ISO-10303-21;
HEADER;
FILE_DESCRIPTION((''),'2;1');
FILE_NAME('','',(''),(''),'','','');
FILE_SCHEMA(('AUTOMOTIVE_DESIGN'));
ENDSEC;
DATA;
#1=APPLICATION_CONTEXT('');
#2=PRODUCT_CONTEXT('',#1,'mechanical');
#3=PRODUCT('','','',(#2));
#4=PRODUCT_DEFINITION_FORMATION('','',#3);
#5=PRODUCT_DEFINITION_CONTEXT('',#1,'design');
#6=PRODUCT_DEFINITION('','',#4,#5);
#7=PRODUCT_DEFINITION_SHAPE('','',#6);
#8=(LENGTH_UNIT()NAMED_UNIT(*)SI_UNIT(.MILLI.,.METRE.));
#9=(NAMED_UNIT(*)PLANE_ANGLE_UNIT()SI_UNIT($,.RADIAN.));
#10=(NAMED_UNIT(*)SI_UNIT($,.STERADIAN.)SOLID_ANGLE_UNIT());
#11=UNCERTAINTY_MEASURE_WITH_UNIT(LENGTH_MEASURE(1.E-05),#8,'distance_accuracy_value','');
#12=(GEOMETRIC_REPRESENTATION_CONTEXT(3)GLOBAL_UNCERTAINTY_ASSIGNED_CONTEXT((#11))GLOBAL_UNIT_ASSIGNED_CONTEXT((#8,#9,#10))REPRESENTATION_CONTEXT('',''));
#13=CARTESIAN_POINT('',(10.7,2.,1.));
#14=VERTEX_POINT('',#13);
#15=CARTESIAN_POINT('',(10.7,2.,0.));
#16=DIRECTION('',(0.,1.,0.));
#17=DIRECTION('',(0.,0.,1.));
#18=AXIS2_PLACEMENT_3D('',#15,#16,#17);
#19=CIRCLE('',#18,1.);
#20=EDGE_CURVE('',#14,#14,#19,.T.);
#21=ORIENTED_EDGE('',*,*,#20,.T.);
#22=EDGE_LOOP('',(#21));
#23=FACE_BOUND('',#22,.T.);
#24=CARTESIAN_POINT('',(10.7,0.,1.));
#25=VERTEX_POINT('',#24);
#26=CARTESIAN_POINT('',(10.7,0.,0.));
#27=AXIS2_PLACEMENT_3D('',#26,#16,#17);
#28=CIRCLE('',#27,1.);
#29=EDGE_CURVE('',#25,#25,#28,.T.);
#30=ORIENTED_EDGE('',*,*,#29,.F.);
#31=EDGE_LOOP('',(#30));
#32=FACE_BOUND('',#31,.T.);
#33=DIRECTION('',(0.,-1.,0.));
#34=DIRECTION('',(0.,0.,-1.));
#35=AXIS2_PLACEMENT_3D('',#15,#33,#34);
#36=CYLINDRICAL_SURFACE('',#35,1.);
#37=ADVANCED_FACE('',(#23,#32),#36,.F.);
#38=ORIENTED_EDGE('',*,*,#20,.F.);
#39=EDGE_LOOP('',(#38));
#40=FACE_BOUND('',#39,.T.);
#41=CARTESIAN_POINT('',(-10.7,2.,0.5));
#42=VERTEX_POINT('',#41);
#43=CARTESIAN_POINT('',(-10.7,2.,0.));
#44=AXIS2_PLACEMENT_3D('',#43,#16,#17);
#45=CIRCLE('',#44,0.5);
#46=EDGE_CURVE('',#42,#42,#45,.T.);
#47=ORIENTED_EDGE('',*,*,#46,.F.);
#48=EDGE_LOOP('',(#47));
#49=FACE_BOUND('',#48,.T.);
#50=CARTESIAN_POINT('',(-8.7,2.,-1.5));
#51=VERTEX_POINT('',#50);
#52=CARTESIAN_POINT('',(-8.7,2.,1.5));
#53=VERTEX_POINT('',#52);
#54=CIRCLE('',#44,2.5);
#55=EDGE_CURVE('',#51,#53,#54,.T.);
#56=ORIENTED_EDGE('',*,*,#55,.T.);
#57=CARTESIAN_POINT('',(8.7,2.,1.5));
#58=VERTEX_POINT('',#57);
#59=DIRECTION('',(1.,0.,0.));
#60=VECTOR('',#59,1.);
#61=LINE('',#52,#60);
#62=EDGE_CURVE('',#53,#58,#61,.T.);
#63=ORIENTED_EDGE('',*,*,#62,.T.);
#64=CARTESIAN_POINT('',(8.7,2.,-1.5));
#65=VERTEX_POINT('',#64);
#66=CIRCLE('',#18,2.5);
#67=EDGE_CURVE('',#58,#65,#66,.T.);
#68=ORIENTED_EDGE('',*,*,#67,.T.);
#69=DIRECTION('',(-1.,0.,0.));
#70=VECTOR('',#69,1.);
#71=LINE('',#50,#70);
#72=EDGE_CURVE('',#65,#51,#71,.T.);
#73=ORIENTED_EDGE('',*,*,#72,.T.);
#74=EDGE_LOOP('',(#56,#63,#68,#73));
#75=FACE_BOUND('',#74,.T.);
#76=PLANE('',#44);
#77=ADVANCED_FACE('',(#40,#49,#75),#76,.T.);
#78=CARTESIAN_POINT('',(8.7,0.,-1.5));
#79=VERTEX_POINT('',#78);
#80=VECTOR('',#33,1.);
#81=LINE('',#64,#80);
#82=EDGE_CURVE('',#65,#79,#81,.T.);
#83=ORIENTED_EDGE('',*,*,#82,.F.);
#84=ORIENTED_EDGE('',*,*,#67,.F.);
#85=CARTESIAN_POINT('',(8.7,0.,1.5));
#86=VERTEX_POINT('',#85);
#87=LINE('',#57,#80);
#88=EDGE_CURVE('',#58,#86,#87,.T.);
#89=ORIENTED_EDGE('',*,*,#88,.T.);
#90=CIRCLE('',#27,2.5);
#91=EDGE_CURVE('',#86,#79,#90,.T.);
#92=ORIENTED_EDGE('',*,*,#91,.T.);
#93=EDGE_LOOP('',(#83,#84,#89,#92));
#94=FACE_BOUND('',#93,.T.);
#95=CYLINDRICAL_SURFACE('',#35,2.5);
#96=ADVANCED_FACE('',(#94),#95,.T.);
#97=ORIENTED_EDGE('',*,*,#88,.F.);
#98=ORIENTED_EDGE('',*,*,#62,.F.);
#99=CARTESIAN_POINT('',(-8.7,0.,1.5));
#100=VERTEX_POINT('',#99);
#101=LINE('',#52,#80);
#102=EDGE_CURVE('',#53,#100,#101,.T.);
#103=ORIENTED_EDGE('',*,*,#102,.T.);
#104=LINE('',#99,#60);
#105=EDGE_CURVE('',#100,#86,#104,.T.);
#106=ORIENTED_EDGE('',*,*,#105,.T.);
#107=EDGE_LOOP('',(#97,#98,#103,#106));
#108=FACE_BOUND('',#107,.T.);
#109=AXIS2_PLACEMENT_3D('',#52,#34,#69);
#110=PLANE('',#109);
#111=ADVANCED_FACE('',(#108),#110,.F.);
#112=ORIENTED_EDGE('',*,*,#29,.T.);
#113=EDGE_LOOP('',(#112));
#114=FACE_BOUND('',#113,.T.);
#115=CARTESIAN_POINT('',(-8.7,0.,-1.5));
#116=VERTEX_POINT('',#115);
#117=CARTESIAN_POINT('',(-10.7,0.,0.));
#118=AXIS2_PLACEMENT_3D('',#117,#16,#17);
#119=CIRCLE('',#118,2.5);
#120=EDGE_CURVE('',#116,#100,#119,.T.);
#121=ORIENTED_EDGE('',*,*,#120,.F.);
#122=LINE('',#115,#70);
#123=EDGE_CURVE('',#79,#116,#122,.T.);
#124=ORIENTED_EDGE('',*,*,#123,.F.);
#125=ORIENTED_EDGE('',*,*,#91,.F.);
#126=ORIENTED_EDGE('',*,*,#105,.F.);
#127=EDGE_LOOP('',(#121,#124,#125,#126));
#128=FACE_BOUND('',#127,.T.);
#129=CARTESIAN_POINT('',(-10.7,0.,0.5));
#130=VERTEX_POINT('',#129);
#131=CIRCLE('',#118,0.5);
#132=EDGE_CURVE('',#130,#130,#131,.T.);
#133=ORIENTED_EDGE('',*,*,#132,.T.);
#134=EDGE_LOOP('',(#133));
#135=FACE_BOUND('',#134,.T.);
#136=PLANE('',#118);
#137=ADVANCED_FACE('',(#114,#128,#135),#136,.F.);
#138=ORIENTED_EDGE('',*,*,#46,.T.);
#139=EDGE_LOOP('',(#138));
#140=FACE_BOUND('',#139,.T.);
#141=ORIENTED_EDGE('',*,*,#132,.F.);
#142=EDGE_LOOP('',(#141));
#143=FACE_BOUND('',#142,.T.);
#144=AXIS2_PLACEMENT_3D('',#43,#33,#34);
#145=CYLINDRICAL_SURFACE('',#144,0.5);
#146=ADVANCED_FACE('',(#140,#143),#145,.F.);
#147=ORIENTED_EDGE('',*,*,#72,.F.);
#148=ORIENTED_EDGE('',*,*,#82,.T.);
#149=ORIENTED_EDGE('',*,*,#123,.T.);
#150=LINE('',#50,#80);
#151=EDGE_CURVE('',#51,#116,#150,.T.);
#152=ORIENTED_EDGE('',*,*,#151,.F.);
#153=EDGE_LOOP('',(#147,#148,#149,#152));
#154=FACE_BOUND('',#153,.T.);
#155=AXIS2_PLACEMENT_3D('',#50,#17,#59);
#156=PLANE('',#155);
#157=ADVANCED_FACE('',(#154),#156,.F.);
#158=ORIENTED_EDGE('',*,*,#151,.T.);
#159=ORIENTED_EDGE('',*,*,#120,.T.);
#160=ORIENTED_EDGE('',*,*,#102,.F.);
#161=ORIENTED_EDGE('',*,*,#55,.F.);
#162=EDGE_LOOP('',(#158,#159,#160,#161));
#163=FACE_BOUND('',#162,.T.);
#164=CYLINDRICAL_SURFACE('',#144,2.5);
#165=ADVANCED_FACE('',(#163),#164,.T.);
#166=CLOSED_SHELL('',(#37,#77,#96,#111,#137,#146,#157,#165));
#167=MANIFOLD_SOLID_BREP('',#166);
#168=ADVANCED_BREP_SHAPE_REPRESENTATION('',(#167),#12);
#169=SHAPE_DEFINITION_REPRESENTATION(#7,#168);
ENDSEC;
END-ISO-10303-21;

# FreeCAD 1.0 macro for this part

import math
import FreeCAD as App
import Part
import Sketcher
from FreeCAD import Vector

doc = App.newDocument("Part")
body = doc.addObject("PartDesign::Body", "Body")

sketch1 = body.newObject("Sketcher::SketchObject", "Sketch")
sketch1.AttachmentSupport = (doc.getObject("XZ_Plane"), [""])
sketch1.MapMode = "FlatFace"
sketch1.addGeometry(Part.LineSegment(Vector(8.7, -1.5, 0), Vector(-8.7, -1.5, 0)), False)
sketch1.addGeometry(Part.ArcOfCircle(Part.Circle(Vector(-10.7, 0, 0), Vector(0, 0, 1), 2.5), math.radians(36.869898), math.radians(323.130102)), False)
sketch1.addGeometry(Part.LineSegment(Vector(-8.7, 1.5, 0), Vector(8.7, 1.5, 0)), False)
sketch1.addGeometry(Part.ArcOfCircle(Part.Circle(Vector(10.7, 0, 0), Vector(0, 0, 1), 2.5), math.radians(-143.130102), math.radians(143.130102)), False)
sketch1.addGeometry(Part.Circle(Vector(-10.7, 0, 0), Vector(0, 0, 1), 0.5), False)
sketch1.addGeometry(Part.Circle(Vector(10.7, 0, 0), Vector(0, 0, 1), 1), False)
sketch1.addConstraint(Sketcher.Constraint("Coincident", 0, 2, 1, 2))
sketch1.addConstraint(Sketcher.Constraint("Coincident", 1, 1, 2, 1))
sketch1.addConstraint(Sketcher.Constraint("Coincident", 2, 2, 3, 2))
sketch1.addConstraint(Sketcher.Constraint("Coincident", 3, 1, 0, 1))
sketch1.addConstraint(Sketcher.Constraint("Horizontal", 0))
sketch1.addConstraint(Sketcher.Constraint("Horizontal", 2))
sketch1.addConstraint(Sketcher.Constraint("Coincident", 4, 3, 1, 3))
sketch1.addConstraint(Sketcher.Constraint("Coincident", 5, 3, 3, 3))
sketch1.addConstraint(Sketcher.Constraint("Equal", 1, 3))
sketch1.addConstraint(Sketcher.Constraint("Symmetric", 1, 3, 3, 3, -1, 1))
sketch1.addConstraint(Sketcher.Constraint("Symmetric", 0, 2, 1, 1, -1))
sketch1.addConstraint(Sketcher.Constraint("Diameter", 4, 1.0))
sketch1.addConstraint(Sketcher.Constraint("Diameter", 5, 2.0))
sketch1.addConstraint(Sketcher.Constraint("Radius", 1, 2.5))
sketch1.addConstraint(Sketcher.Constraint("DistanceX", 0, 2, 0, 1, 17.4))
sketch1.addConstraint(Sketcher.Constraint("DistanceX", 1, 3, 0, 2, 2.0))
pad1 = body.newObject("PartDesign::Pad", "Pad")
pad1.Profile = sketch1
pad1.Length = 2
pad1.Reversed = True

doc.recompute()
